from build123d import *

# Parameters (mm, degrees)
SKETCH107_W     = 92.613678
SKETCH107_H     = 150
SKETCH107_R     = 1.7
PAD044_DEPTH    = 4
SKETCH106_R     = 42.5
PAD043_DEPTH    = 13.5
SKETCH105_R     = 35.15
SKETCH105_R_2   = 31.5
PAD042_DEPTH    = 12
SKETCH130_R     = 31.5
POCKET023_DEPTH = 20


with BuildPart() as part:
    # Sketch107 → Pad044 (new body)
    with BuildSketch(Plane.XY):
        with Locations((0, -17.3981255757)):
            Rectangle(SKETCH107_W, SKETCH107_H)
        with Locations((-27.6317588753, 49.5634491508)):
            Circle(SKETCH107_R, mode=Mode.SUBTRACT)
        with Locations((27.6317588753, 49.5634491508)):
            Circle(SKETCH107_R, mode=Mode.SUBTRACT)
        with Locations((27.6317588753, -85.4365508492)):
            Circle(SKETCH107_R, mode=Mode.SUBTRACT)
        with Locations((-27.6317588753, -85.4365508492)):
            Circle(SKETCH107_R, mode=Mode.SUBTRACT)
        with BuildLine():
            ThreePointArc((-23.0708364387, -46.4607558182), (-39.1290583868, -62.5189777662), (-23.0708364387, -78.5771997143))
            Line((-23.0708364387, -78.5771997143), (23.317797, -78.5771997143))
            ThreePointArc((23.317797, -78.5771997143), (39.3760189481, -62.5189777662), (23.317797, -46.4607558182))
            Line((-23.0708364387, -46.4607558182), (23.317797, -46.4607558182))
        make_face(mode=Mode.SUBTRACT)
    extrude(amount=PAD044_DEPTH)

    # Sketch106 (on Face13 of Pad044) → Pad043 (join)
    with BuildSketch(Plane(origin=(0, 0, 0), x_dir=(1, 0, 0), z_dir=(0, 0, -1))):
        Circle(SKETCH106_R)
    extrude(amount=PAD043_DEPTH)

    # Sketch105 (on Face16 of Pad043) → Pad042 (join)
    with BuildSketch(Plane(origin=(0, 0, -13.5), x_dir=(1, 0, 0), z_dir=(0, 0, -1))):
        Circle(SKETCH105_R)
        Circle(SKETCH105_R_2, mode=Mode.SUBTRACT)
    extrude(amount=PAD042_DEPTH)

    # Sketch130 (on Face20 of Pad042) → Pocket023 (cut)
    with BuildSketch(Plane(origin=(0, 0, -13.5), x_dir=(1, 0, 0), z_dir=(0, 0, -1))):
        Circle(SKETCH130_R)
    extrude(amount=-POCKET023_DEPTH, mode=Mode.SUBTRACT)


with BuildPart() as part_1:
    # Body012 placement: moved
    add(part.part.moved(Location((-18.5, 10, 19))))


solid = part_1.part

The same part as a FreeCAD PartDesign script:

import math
import FreeCAD as App
import Part
import Sketcher
from FreeCAD import Vector


def add_polygon(sketch, points):
    """Adds a closed chain of lines whose ends are joined by coincident constraints."""
    first, n = sketch.GeometryCount, len(points)
    for a, b in zip(points, points[1:] + points[:1]):
        sketch.addGeometry(Part.LineSegment(App.Vector(*a, 0), App.Vector(*b, 0)), False)
    for i in range(n):
        sketch.addConstraint(Sketcher.Constraint("Coincident", first + i, 2, first + (i + 1) % n, 1))

doc = App.newDocument("Part")
body = doc.addObject("PartDesign::Body", "Body")

# Sketch on XY plane
sketch1 = body.newObject("Sketcher::SketchObject", "Sketch")
sketch1.AttachmentSupport = (doc.getObject("XY_Plane"), [""])
sketch1.MapMode = "FlatFace"
add_polygon(sketch1, [(-46.3, 57.6), (-46.3, -92.4), (46.3, -92.4), (46.3, 57.6)])  # lines 0-3
sketch1.addGeometry(Part.Circle(Vector(-27.6, -85.4, 0), Vector(0, 0, 1), 1.7), False)  # 4
sketch1.addGeometry(Part.ArcOfCircle(Part.Circle(Vector(-23.1, -62.5, 0), Vector(0, 0, 1), 16.1), math.radians(90), math.radians(270)), False)  # 5
sketch1.addGeometry(Part.LineSegment(Vector(-23.1, -46.5, 0), Vector(23.3, -46.5, 0)), False)  # 6
sketch1.addGeometry(Part.ArcOfCircle(Part.Circle(Vector(23.3, -62.5, 0), Vector(0, 0, 1), 16.1), math.radians(-90), math.radians(90)), False)  # 7
sketch1.addGeometry(Part.LineSegment(Vector(23.3, -78.6, 0), Vector(-23.1, -78.6, 0)), False)  # 8
sketch1.addGeometry(Part.Circle(Vector(27.6, -85.4, 0), Vector(0, 0, 1), 1.7), False)  # 9
sketch1.addGeometry(Part.Circle(Vector(-27.6, 49.6, 0), Vector(0, 0, 1), 1.7), False)  # 10
sketch1.addGeometry(Part.Circle(Vector(27.6, 49.6, 0), Vector(0, 0, 1), 1.7), False)  # 11
sketch1.addConstraint(Sketcher.Constraint("Tangent", 5, 1, 6, 1))
sketch1.addConstraint(Sketcher.Constraint("Tangent", 6, 2, 7, 2))
sketch1.addConstraint(Sketcher.Constraint("Tangent", 7, 1, 8, 1))
sketch1.addConstraint(Sketcher.Constraint("Tangent", 8, 2, 5, 2))
sketch1.addConstraint(Sketcher.Constraint("Vertical", 0))
sketch1.addConstraint(Sketcher.Constraint("Horizontal", 1))
sketch1.addConstraint(Sketcher.Constraint("Vertical", 2))
sketch1.addConstraint(Sketcher.Constraint("Horizontal", 3))
sketch1.addConstraint(Sketcher.Constraint("Horizontal", 6))
sketch1.addConstraint(Sketcher.Constraint("Horizontal", 8))
sketch1.addConstraint(Sketcher.Constraint("Equal", 4, 9))
sketch1.addConstraint(Sketcher.Constraint("Equal", 9, 10))
sketch1.addConstraint(Sketcher.Constraint("Equal", 10, 11))
sketch1.addConstraint(Sketcher.Constraint("Symmetric", 4, 3, 9, 3, -2))
sketch1.addConstraint(Sketcher.Constraint("Symmetric", 10, 3, 11, 3, -2))
sketch1.addConstraint(Sketcher.Constraint("Vertical", 4, 3, 10, 3))
sketch1.addConstraint(Sketcher.Constraint("Diameter", 4, 3.4))
sketch1.addConstraint(Sketcher.Constraint("DistanceY", 0, 2, 0, 1, 150.0))
sketch1.addConstraint(Sketcher.Constraint("DistanceY", 4, 3, 10, 3, 135.0))
sketch1.addConstraint(Sketcher.Constraint("Radius", 5, 16.058222))
sketch1.addConstraint(Sketcher.Constraint("DistanceY", 7, 1, -1, 1, 78.5772))
sketch1.addConstraint(Sketcher.Constraint("DistanceX", 1, 1, 1, 2, 92.613678))
sketch1.addConstraint(Sketcher.Constraint("DistanceX", 6, 1, 6, 2, 46.388633))
sketch1.addConstraint(Sketcher.Constraint("DistanceX", 4, 3, -1, 1, 27.631759))
sketch1.addConstraint(Sketcher.Constraint("DistanceY", 4, 3, -1, 1, 85.436551))
sketch1.addConstraint(Sketcher.Constraint("DistanceX", 0, 2, -1, 1, 46.306839))
sketch1.addConstraint(Sketcher.Constraint("DistanceX", 7, 3, 9, 3, 4.313962))
sketch1.addConstraint(Sketcher.Constraint("DistanceY", 0, 2, 5, 1, 45.93737))
pad1 = body.newObject("PartDesign::Pad", "Pad")
pad1.Profile = sketch1
pad1.Length = 4

# Sketch on XY plane
sketch2 = body.newObject("Sketcher::SketchObject", "Sketch001")
sketch2.AttachmentSupport = (doc.getObject("XY_Plane"), [""])
sketch2.MapMode = "FlatFace"
sketch2.addGeometry(Part.Circle(Vector(0, 0, 0), Vector(0, 0, 1), 42), False)
sketch2.addConstraint(Sketcher.Constraint("Coincident", 0, 3, -1, 1))
sketch2.addConstraint(Sketcher.Constraint("Diameter", 0, 85.0))
pad2 = body.newObject("PartDesign::Pad", "Pad001")
pad2.Profile = sketch2
pad2.Length = 13.5
pad2.Reversed = True

# Sketch on XY plane
sketch3 = body.newObject("Sketcher::SketchObject", "Sketch002")
sketch3.AttachmentSupport = (doc.getObject("XY_Plane"), [""])
sketch3.MapMode = "FlatFace"
sketch3.AttachmentOffset = App.Placement(Vector(0, 0, -13.5), App.Rotation())
sketch3.addGeometry(Part.Circle(Vector(0, 0, 0), Vector(0, 0, 1), 35), False)
sketch3.addGeometry(Part.Circle(Vector(0, 0, 0), Vector(0, 0, 1), 32), False)
sketch3.addConstraint(Sketcher.Constraint("Coincident", 0, 3, -1, 1))
sketch3.addConstraint(Sketcher.Constraint("Coincident", 1, 3, -1, 1))
sketch3.addConstraint(Sketcher.Constraint("Diameter", 1, 63.0))
sketch3.addConstraint(Sketcher.Constraint("Diameter", 0, 70.3))
pad3 = body.newObject("PartDesign::Pad", "Pad002")
pad3.Profile = sketch3
pad3.Length = 12
pad3.Reversed = True

# Sketch on XY plane
sketch4 = body.newObject("Sketcher::SketchObject", "Sketch003")
sketch4.AttachmentSupport = (doc.getObject("XY_Plane"), [""])
sketch4.MapMode = "FlatFace"
sketch4.AttachmentOffset = App.Placement(Vector(0, 0, -13.5), App.Rotation())
sketch4.addGeometry(Part.Circle(Vector(0, 0, 0), Vector(0, 0, 1), 32), False)
sketch4.addConstraint(Sketcher.Constraint("Coincident", 0, 3, -1, 1))
sketch4.addConstraint(Sketcher.Constraint("Diameter", 0, 63.0))
pocket1 = body.newObject("PartDesign::Pocket", "Pocket")
pocket1.Profile = sketch4
pocket1.Length = 20
pocket1.Reversed = True
body2 = doc.addObject("PartDesign::Body", "Body001")
doc.recompute()

body.Placement = App.Placement(Vector(-18.5, 10, 19), App.Rotation(Vector(0, 0, 1), 0))
boolean = body2.newObject("PartDesign::Boolean", "Boolean")
boolean.Type = "Fuse"
boolean.addObjects([body])

doc.recompute()
